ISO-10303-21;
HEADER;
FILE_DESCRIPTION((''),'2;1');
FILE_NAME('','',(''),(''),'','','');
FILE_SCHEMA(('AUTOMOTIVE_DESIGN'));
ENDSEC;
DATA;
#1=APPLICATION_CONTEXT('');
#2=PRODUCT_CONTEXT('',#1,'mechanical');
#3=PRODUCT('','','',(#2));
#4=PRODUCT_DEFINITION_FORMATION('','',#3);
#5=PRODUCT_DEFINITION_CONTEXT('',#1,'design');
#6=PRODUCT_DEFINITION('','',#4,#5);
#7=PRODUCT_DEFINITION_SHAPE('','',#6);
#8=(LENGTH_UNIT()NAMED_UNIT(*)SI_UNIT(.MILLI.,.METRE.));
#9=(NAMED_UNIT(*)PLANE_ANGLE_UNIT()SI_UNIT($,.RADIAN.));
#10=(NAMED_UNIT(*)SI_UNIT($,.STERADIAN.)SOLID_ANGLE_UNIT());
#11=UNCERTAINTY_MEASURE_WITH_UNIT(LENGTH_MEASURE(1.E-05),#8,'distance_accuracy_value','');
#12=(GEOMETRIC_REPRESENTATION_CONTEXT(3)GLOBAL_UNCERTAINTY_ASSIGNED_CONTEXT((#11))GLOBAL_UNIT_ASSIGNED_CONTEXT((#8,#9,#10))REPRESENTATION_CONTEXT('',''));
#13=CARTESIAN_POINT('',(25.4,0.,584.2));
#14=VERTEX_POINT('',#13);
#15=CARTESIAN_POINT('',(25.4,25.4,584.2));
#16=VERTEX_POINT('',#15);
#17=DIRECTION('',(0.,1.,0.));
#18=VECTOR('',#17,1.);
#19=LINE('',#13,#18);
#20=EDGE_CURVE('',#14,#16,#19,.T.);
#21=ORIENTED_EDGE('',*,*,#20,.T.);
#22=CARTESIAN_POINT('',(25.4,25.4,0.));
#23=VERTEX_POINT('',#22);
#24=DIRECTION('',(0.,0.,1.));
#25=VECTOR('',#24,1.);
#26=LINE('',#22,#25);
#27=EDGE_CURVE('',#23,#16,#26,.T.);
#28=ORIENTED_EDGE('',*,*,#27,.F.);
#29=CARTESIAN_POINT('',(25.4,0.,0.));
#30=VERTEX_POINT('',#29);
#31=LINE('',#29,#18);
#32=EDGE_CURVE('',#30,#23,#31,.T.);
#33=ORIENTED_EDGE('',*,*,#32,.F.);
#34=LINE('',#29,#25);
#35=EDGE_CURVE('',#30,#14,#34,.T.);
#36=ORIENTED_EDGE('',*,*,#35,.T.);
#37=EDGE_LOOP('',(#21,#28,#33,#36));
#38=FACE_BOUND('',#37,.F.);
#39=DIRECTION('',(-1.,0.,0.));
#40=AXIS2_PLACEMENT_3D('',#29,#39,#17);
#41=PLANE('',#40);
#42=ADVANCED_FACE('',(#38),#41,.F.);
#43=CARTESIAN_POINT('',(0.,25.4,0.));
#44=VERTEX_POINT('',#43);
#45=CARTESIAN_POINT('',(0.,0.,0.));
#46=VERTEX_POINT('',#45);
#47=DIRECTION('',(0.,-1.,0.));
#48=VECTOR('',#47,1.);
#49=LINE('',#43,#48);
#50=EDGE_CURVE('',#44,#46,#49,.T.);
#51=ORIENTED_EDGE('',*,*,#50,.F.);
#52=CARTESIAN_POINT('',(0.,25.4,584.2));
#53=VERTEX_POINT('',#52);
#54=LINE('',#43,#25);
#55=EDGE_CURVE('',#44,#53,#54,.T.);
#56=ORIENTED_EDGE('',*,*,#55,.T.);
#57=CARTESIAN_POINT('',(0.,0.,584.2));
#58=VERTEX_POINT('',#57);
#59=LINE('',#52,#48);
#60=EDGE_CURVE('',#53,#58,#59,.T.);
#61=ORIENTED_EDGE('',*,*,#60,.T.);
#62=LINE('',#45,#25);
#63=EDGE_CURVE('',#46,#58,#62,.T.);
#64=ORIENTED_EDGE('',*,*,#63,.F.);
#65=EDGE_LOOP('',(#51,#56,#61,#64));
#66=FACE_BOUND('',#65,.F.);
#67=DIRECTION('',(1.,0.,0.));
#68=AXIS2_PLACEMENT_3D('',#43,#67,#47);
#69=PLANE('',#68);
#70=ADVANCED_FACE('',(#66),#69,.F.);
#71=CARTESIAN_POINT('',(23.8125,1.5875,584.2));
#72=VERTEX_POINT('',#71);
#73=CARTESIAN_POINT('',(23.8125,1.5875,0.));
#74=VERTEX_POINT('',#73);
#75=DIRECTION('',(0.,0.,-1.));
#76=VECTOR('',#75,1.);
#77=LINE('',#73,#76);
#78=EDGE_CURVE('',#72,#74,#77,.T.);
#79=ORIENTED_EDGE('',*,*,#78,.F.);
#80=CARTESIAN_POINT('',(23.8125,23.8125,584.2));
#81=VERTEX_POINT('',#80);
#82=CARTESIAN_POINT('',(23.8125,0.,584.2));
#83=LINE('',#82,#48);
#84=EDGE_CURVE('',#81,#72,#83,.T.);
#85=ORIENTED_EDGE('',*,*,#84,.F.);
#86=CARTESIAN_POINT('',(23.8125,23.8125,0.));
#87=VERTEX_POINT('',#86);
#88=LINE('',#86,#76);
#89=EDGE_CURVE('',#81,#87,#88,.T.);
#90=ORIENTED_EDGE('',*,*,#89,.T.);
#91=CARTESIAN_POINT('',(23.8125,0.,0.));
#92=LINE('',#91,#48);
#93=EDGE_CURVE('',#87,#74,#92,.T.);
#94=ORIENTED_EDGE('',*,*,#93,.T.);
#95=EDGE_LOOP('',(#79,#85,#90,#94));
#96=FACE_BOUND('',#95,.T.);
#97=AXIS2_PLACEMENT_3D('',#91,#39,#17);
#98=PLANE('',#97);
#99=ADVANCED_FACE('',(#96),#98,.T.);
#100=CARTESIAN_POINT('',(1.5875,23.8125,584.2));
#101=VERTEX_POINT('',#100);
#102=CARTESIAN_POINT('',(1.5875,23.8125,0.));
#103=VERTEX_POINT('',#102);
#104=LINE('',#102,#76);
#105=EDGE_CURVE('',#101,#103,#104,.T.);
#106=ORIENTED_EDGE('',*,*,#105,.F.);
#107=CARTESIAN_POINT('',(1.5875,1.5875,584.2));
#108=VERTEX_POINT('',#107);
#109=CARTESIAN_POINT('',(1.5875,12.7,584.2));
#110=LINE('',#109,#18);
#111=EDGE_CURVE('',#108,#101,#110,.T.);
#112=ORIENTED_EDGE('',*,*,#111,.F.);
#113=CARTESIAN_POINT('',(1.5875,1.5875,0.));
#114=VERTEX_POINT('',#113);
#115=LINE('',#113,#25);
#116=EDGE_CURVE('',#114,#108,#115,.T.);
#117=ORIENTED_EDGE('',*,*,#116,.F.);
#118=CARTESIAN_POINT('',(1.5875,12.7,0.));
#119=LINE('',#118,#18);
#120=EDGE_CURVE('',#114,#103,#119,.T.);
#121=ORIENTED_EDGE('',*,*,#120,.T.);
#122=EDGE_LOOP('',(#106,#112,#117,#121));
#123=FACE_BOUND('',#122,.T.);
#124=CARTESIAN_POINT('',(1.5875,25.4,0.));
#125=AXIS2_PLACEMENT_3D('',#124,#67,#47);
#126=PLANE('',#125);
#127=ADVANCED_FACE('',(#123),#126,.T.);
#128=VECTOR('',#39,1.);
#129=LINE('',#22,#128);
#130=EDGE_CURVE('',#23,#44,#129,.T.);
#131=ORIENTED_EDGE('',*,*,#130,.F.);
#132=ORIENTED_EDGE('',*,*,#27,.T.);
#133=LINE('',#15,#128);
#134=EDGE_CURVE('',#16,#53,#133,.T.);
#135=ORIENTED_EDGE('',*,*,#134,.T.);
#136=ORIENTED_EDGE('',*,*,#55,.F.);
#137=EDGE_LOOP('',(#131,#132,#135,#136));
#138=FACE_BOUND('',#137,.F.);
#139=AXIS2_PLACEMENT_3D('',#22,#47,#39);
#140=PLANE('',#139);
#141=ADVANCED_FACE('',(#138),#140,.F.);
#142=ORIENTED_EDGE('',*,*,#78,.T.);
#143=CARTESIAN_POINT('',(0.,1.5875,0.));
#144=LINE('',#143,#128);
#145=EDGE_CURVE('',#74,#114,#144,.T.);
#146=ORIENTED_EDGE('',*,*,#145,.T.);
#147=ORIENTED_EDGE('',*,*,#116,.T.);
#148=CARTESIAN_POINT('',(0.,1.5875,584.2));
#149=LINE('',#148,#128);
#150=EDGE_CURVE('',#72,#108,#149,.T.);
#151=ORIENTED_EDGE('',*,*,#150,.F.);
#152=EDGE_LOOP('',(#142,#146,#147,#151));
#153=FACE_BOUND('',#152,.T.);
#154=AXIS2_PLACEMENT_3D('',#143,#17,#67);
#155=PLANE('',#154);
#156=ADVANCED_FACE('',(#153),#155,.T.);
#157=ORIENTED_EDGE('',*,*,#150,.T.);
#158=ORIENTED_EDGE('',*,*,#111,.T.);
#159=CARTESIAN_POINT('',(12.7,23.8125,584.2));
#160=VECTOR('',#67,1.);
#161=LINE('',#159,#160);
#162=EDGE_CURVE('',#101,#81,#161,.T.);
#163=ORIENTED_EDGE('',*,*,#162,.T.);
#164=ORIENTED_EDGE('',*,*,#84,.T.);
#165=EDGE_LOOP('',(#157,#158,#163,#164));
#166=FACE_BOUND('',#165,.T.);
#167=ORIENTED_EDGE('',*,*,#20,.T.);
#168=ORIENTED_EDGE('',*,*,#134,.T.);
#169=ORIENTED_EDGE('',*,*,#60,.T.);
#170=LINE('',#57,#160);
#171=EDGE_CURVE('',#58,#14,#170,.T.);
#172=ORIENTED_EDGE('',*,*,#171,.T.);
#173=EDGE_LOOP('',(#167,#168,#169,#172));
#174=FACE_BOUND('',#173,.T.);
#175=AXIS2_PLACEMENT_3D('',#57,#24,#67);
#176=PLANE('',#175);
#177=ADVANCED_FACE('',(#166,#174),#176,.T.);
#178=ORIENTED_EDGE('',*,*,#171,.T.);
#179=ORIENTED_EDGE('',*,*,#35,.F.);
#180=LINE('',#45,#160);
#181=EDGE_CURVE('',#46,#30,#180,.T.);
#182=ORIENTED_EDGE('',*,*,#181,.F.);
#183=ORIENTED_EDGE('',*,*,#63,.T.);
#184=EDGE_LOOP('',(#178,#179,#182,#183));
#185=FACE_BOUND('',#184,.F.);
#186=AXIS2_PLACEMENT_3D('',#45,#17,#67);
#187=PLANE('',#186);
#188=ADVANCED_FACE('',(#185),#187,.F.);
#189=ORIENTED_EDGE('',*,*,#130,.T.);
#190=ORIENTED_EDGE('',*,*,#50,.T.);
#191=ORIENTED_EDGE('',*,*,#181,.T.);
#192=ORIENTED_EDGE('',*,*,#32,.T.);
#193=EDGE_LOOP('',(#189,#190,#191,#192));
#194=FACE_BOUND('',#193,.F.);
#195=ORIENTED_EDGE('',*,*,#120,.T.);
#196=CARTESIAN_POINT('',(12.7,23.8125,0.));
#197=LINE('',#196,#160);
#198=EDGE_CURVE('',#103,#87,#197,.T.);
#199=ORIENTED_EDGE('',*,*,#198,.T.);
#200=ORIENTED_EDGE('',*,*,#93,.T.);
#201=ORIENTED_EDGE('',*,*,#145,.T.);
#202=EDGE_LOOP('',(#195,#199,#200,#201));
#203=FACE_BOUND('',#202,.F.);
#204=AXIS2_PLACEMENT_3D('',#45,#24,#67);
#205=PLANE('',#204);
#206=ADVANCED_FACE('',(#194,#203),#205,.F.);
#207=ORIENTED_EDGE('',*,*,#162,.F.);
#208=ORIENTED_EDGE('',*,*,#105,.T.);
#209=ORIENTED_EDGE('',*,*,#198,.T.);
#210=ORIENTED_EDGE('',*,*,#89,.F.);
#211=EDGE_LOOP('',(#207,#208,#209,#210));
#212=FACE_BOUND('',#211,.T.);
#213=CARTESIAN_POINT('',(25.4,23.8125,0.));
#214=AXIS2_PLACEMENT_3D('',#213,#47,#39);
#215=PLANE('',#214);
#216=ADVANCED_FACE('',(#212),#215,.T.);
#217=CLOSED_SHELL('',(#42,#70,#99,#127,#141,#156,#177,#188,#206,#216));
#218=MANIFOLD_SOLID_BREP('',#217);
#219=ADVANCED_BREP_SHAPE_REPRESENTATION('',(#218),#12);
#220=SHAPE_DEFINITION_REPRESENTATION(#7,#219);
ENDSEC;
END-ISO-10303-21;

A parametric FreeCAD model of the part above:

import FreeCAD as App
import Part
import Sketcher
from FreeCAD import Vector
Q = App.Units.Quantity


def faces_at(feature, points):
    """Names of the faces that lie closest to the given points."""
    faces = feature.Shape.Faces
    near = lambda p: min(range(len(faces)), key=lambda i: faces[i].distToShape(Part.Vertex(*p))[0])
    return sorted({f"Face{near(p) + 1}" for p in points})

doc = App.newDocument("Part")
body = doc.addObject("PartDesign::Body", "Body")

# Sketch on XY plane
sketch1 = body.newObject("Sketcher::SketchObject", "Sketch")
sketch1.AttachmentSupport = (doc.getObject("XY_Plane"), [""])
sketch1.MapMode = "FlatFace"
sketch1.addGeometry(Part.LineSegment(Vector(0, 25, 0), Vector(0, 0, 0)), False)
sketch1.addGeometry(Part.LineSegment(Vector(0, 0, 0), Vector(25, 0, 0)), False)
sketch1.addGeometry(Part.LineSegment(Vector(25, 0, 0), Vector(25, 25, 0)), False)
sketch1.addGeometry(Part.LineSegment(Vector(25, 25, 0), Vector(0, 25, 0)), False)
sketch1.addConstraint(Sketcher.Constraint("Coincident", 0, 2, 1, 1))
sketch1.addConstraint(Sketcher.Constraint("Coincident", 1, 2, 2, 1))
sketch1.addConstraint(Sketcher.Constraint("Coincident", 2, 2, 3, 1))
sketch1.addConstraint(Sketcher.Constraint("Coincident", 3, 2, 0, 1))
sketch1.addConstraint(Sketcher.Constraint("Vertical", 0))
sketch1.addConstraint(Sketcher.Constraint("Horizontal", 1))
sketch1.addConstraint(Sketcher.Constraint("Vertical", 2))
sketch1.addConstraint(Sketcher.Constraint("Horizontal", 3))
sketch1.addConstraint(Sketcher.Constraint("Coincident", 0, 2, -1, 1))
sketch1.addConstraint(Sketcher.Constraint("Equal", 3, 0))
sketch1.addConstraint(Sketcher.Constraint("DistanceX", 1, 1, 1, 2, Q("1 in")))
pad1 = body.newObject("PartDesign::Pad", "Pad")
pad1.Profile = sketch1
pad1.Length = Q("23 in")
doc.recompute()

thickness = body.newObject("PartDesign::Thickness", "Thickness")
thickness.Base = (pad1, faces_at(pad1, [(8.467, 16.933, 0), (8.467, 16.933, 584.2)]))
thickness.Value = Q("0.0625 in")
thickness.Reversed = True
thickness.Join = "Intersection"

doc.recompute()
